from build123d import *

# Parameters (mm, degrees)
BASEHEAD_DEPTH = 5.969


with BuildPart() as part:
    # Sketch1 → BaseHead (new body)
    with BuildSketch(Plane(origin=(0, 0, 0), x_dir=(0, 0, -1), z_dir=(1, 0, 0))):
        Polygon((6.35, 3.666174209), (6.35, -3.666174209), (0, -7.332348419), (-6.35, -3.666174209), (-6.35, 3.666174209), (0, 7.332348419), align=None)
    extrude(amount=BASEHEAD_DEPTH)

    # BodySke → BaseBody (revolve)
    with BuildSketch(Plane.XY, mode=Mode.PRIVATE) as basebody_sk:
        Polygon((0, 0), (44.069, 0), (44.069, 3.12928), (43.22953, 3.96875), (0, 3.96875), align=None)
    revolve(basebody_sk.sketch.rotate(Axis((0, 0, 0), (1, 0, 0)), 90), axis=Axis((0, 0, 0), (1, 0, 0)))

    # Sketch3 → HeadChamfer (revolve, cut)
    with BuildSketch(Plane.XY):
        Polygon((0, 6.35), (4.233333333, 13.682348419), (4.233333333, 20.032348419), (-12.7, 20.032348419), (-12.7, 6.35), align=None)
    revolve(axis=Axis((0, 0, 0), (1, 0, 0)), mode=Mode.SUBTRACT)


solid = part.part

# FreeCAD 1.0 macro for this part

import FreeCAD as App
import Part
import Sketcher
Q = App.Units.Quantity


def add_polygon(sketch, points):
    """Adds a closed chain of lines whose ends are joined by coincident constraints."""
    first, n = sketch.GeometryCount, len(points)
    for a, b in zip(points, points[1:] + points[:1]):
        sketch.addGeometry(Part.LineSegment(App.Vector(*a, 0), App.Vector(*b, 0)), False)
    for i in range(n):
        sketch.addConstraint(Sketcher.Constraint("Coincident", first + i, 2, first + (i + 1) % n, 1))

doc = App.newDocument("Part")
params = doc.addObject("Spreadsheet::Sheet", "Params")
for row, (alias, value) in enumerate([
    ("pad1_length", "0.235 in"),
    ("sketch2_width", "1.735 in"),
    ("sketch2_height", "0.15625 in"),
    ("revolution_angle", "360 deg"),
    ("sketch3_width", "0.5 in"),
    ("sketch3_height", "0.25 in"),
    ("groove_angle", "360 deg"),
], start=1):
    params.set(f"A{row}", alias)
    params.set(f"B{row}", "=" + value)
    params.setAlias(f"B{row}", alias)

body = doc.addObject("PartDesign::Body", "Body")

# Sketch on YZ plane
sketch1 = body.newObject("Sketcher::SketchObject", "Sketch")
sketch1.AttachmentSupport = (doc.getObject("YZ_Plane"), [""])
sketch1.MapMode = "FlatFace"
add_polygon(sketch1, [(-4, -6), (4, -6), (7, 0), (4, 6), (-4, 6), (-7, 0)])  # lines 0-5
sketch1.addConstraint([
    Sketcher.Constraint("Horizontal", 0),
    Sketcher.Constraint("Horizontal", 3),
    Sketcher.Constraint("Symmetric", 0, 2, 3, 2, -1, 1),
    Sketcher.Constraint("Symmetric", 1, 2, 4, 2, -1, 1),
    Sketcher.Constraint("PointOnObject", 1, 2, -1),
    Sketcher.Constraint("Parallel", 2, 5),
    Sketcher.Constraint("Vertical", 0, 2, 2, 2),
    Sketcher.Constraint("Angle", 1, Q("60 deg")),
    Sketcher.Constraint("DistanceY", 0, 2, 2, 2, Q("0.5 in")),
    Sketcher.Constraint("DistanceX", 0, 1, 0, 2, Q("7.332348 mm")),
])
pad1 = body.newObject("PartDesign::Pad", "Pad")
pad1.Profile = sketch1
pad1.setExpression("Length", "Params.pad1_length")

# Sketch on XY plane
sketch2 = body.newObject("Sketcher::SketchObject", "Sketch001")
sketch2.AttachmentSupport = (doc.getObject("XY_Plane"), [""])
sketch2.MapMode = "FlatFace"
add_polygon(sketch2, [(0, 0), (44.1, 0), (44.1, 3.1), (43.2, 4), (0, 4)])  # lines 0-4
sketch2.addConstraint([
    Sketcher.Constraint("Horizontal", 0),
    Sketcher.Constraint("Vertical", 1),
    Sketcher.Constraint("Horizontal", 3),
    Sketcher.Constraint("Vertical", 4),
    Sketcher.Constraint("Coincident", 4, 2, -1, 1),
    Sketcher.Constraint("Angle", 2, Q("135 deg")),
    Sketcher.Constraint("DistanceX", 0, 1, 0, 2, Q("1.735 in")),
    Sketcher.Constraint("DistanceY", 4, 2, 4, 1, Q("0.15625 in")),
    Sketcher.Constraint("DistanceY", 1, 1, 1, 2, Q("0.1232 in")),
])
sketch2.setExpression("Constraints[11]", "Params.sketch2_width")
sketch2.setExpression("Constraints[12]", "Params.sketch2_height")
revolution = body.newObject("PartDesign::Revolution", "Revolution")
revolution.Profile = sketch2
revolution.ReferenceAxis = (sketch2, ["H_Axis"])
revolution.setExpression("Angle", "Params.revolution_angle")

# Sketch on XY plane
sketch3 = body.newObject("Sketcher::SketchObject", "Sketch002")
sketch3.AttachmentSupport = (doc.getObject("XY_Plane"), [""])
sketch3.MapMode = "FlatFace"
add_polygon(sketch3, [(0, 6), (4, 14), (4, 20), (-13, 20), (-13, 6)])  # lines 0-4
sketch3.addConstraint([
    Sketcher.Constraint("Vertical", 1),
    Sketcher.Constraint("Horizontal", 2),
    Sketcher.Constraint("Vertical", 3),
    Sketcher.Constraint("Horizontal", 4),
    Sketcher.Constraint("PointOnObject", 4, 2, -2),
    Sketcher.Constraint("DistanceX", 4, 1, 4, 2, Q("0.5 in")),
    Sketcher.Constraint("Angle", 0, Q("60 deg")),
    Sketcher.Constraint("DistanceY", 1, 1, 1, 2, Q("0.25 in")),
    Sketcher.Constraint("DistanceY", -1, 1, 3, 2, Q("0.25 in")),
    Sketcher.Constraint("DistanceY", 3, 2, 3, 1, Q("13.682348 mm")),
])
sketch3.setExpression("Constraints[10]", "Params.sketch3_width")
sketch3.setExpression("Constraints[12]", "Params.sketch3_height")
groove = body.newObject("PartDesign::Groove", "Groove")
groove.Profile = sketch3
groove.ReferenceAxis = (sketch3, ["H_Axis"])
groove.setExpression("Angle", "Params.groove_angle")

doc.recompute()
